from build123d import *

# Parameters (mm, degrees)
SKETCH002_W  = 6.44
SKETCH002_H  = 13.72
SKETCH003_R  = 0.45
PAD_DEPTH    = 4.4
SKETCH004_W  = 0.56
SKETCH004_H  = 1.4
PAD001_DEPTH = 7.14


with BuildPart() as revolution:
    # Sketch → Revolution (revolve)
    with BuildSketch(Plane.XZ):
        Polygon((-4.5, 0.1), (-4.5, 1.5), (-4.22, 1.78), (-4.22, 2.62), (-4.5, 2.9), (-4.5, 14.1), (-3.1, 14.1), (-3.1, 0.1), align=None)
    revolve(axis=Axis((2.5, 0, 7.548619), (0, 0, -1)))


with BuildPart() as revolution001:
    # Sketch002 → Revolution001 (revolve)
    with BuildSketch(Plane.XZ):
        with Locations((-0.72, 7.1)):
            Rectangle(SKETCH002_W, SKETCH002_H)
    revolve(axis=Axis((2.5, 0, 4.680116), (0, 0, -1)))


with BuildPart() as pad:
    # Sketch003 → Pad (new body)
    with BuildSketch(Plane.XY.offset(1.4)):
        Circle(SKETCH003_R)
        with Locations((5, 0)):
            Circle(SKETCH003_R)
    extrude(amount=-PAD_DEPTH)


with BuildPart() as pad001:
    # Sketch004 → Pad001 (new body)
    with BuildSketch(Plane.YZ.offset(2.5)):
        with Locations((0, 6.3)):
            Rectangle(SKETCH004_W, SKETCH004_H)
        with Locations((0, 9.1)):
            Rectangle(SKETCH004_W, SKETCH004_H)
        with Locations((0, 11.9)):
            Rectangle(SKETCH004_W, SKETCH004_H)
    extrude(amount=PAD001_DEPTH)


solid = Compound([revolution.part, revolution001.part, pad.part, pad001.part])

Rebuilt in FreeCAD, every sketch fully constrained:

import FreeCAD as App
import Part
import Sketcher
from FreeCAD import Vector


def add_polygon(sketch, points):
    """Adds a closed chain of lines whose ends are joined by coincident constraints."""
    first, n = sketch.GeometryCount, len(points)
    for a, b in zip(points, points[1:] + points[:1]):
        sketch.addGeometry(Part.LineSegment(App.Vector(*a, 0), App.Vector(*b, 0)), False)
    for i in range(n):
        sketch.addConstraint(Sketcher.Constraint("Coincident", first + i, 2, first + (i + 1) % n, 1))

doc = App.newDocument("Part")
body = doc.addObject("PartDesign::Body", "Body")

# Sketch on XZ plane
sketch1 = body.newObject("Sketcher::SketchObject", "Sketch")
sketch1.AttachmentSupport = (doc.getObject("XZ_Plane"), [""])
sketch1.MapMode = "FlatFace"
add_polygon(sketch1, [(-4.5, 1.5), (-4.5, 0.1), (-3.1, 0.1), (-3.1, 14.1), (-4.5, 14.1), (-4.5, 2.9), (-4.22, 2.62), (-4.22, 1.78)])  # lines 0-7
sketch1.addGeometry(Part.LineSegment(Vector(2.5, 14.1, 0), Vector(2.5, 0.1, 0)), True)  # axis
sketch1.addConstraint(Sketcher.Constraint("Vertical", 0))
sketch1.addConstraint(Sketcher.Constraint("Horizontal", 1))
sketch1.addConstraint(Sketcher.Constraint("Vertical", 2))
sketch1.addConstraint(Sketcher.Constraint("Horizontal", 3))
sketch1.addConstraint(Sketcher.Constraint("Vertical", 4))
sketch1.addConstraint(Sketcher.Constraint("Vertical", 6))
sketch1.addConstraint(Sketcher.Constraint("Vertical", 8))
sketch1.addConstraint(Sketcher.Constraint("Perpendicular", 5, 7))
sketch1.addConstraint(Sketcher.Constraint("Horizontal", 3, 2, 8, 1))
sketch1.addConstraint(Sketcher.Constraint("Horizontal", 1, 2, 8, 2))
sketch1.addConstraint(Sketcher.Constraint("Vertical", 0, 2, 3, 2))
sketch1.addConstraint(Sketcher.Constraint("Equal", 3, 0))
sketch1.addConstraint(Sketcher.Constraint("Equal", 5, 7))
sketch1.addConstraint(Sketcher.Constraint("DistanceY", 2, 1, 2, 2, 14.0))
sketch1.addConstraint(Sketcher.Constraint("DistanceX", 1, 1, 1, 2, 1.4))
sketch1.addConstraint(Sketcher.Constraint("DistanceY", 4, 2, 4, 1, 11.2))
sketch1.addConstraint(Sketcher.Constraint("DistanceX", 3, 2, 8, 1, 7.0))
sketch1.addConstraint(Sketcher.Constraint("DistanceY", 6, 2, 6, 1, 0.84))
sketch1.addConstraint(Sketcher.Constraint("DistanceX", 0, 2, -1, 1, 4.5))
sketch1.addConstraint(Sketcher.Constraint("DistanceY", -1, 1, 0, 2, 0.1))
revolution = body.newObject("PartDesign::Revolution", "Revolution")
revolution.Profile = sketch1
revolution.ReferenceAxis = (sketch1, ["Axis0"])
revolution.Angle = 360
body2 = doc.addObject("PartDesign::Body", "Body001")

# Sketch on XZ plane
sketch2 = body2.newObject("Sketcher::SketchObject", "Sketch001")
sketch2.AttachmentSupport = (doc.getObject("XZ_Plane001"), [""])
sketch2.MapMode = "FlatFace"
add_polygon(sketch2, [(-3.94, 13.96), (-3.94, 0.24), (2.5, 0.24), (2.5, 13.96)])  # lines 0-3
sketch2.addGeometry(Part.LineSegment(Vector(2.5, 13.96, 0), Vector(2.5, 0.24, 0)), True)  # axis
sketch2.addConstraint(Sketcher.Constraint("Vertical", 0))
sketch2.addConstraint(Sketcher.Constraint("Horizontal", 1))
sketch2.addConstraint(Sketcher.Constraint("Vertical", 2))
sketch2.addConstraint(Sketcher.Constraint("Horizontal", 3))
sketch2.addConstraint(Sketcher.Constraint("Vertical", 4))
sketch2.addConstraint(Sketcher.Constraint("Coincident", 4, 1, 2, 2))
sketch2.addConstraint(Sketcher.Constraint("Horizontal", 0, 2, 4, 2))
sketch2.addConstraint(Sketcher.Constraint("DistanceX", 1, 1, 1, 2, 6.44))
sketch2.addConstraint(Sketcher.Constraint("DistanceY", 0, 2, 0, 1, 13.72))
sketch2.addConstraint(Sketcher.Constraint("DistanceX", -1, 1, 1, 2, 2.5))
sketch2.addConstraint(Sketcher.Constraint("DistanceY", -1, 1, 0, 2, 0.24))
revolution2 = body2.newObject("PartDesign::Revolution", "Revolution001")
revolution2.Profile = sketch2
revolution2.ReferenceAxis = (sketch2, ["Axis0"])
revolution2.Angle = 360
body3 = doc.addObject("PartDesign::Body", "Body002")
body3.AllowCompound = True

# Sketch on XY plane
sketch3 = body3.newObject("Sketcher::SketchObject", "Sketch002")
sketch3.AttachmentSupport = (doc.getObject("XY_Plane002"), [""])
sketch3.MapMode = "FlatFace"
sketch3.AttachmentOffset = App.Placement(Vector(0, 0, 1.4), App.Rotation())
sketch3.addGeometry(Part.Circle(Vector(0, 0, 0), Vector(0, 0, 1), 0.45), False)
sketch3.addGeometry(Part.Circle(Vector(5, 0, 0), Vector(0, 0, 1), 0.45), False)
sketch3.addConstraint(Sketcher.Constraint("Coincident", 0, 3, -1, 1))
sketch3.addConstraint(Sketcher.Constraint("Equal", 0, 1))
sketch3.addConstraint(Sketcher.Constraint("PointOnObject", 1, 3, -1))
sketch3.addConstraint(Sketcher.Constraint("Diameter", 0, 0.9))
sketch3.addConstraint(Sketcher.Constraint("DistanceX", -1, 1, 1, 3, 5.0))
pad1 = body3.newObject("PartDesign::Pad", "Pad")
pad1.Profile = sketch3
pad1.Length = 4.4
pad1.Reversed = True
body4 = doc.addObject("PartDesign::Body", "Body003")
body4.AllowCompound = True

# Sketch on YZ plane
sketch4 = body4.newObject("Sketcher::SketchObject", "Sketch003")
sketch4.AttachmentSupport = (doc.getObject("YZ_Plane003"), [""])
sketch4.MapMode = "FlatFace"
sketch4.AttachmentOffset = App.Placement(Vector(0, 0, 2.5), App.Rotation())
add_polygon(sketch4, [(-0.28, 7), (-0.28, 5.6), (0.28, 5.6), (0.28, 7)])  # lines 0-3
add_polygon(sketch4, [(-0.28, 9.8), (-0.28, 8.4), (0.28, 8.4), (0.28, 9.8)])  # lines 4-7
add_polygon(sketch4, [(-0.28, 12.6), (-0.28, 11.2), (0.28, 11.2), (0.28, 12.6)])  # lines 8-11
sketch4.addConstraint(Sketcher.Constraint("Vertical", 0))
sketch4.addConstraint(Sketcher.Constraint("Horizontal", 1))
sketch4.addConstraint(Sketcher.Constraint("Vertical", 2))
sketch4.addConstraint(Sketcher.Constraint("Horizontal", 3))
sketch4.addConstraint(Sketcher.Constraint("Vertical", 4))
sketch4.addConstraint(Sketcher.Constraint("Horizontal", 5))
sketch4.addConstraint(Sketcher.Constraint("Vertical", 6))
sketch4.addConstraint(Sketcher.Constraint("Horizontal", 7))
sketch4.addConstraint(Sketcher.Constraint("Vertical", 8))
sketch4.addConstraint(Sketcher.Constraint("Horizontal", 9))
sketch4.addConstraint(Sketcher.Constraint("Vertical", 10))
sketch4.addConstraint(Sketcher.Constraint("Horizontal", 11))
sketch4.addConstraint(Sketcher.Constraint("Vertical", 3, 2, 4, 2))
sketch4.addConstraint(Sketcher.Constraint("Vertical", 2, 2, 5, 2))
sketch4.addConstraint(Sketcher.Constraint("Vertical", 7, 2, 8, 2))
sketch4.addConstraint(Sketcher.Constraint("Vertical", 6, 2, 9, 2))
sketch4.addConstraint(Sketcher.Constraint("Equal", 2, 4))
sketch4.addConstraint(Sketcher.Constraint("Equal", 6, 8))
sketch4.addConstraint(Sketcher.Constraint("DistanceY", 0, 2, 0, 1, 1.4))
sketch4.addConstraint(Sketcher.Constraint("DistanceY", -1, 1, 2, 2, 7.0))
sketch4.addConstraint(Sketcher.Constraint("DistanceX", 1, 1, 1, 2, 0.56))
sketch4.addConstraint(Sketcher.Constraint("DistanceY", -1, 1, 4, 2, 8.4))
sketch4.addConstraint(Sketcher.Constraint("DistanceY", -1, 1, 8, 2, 11.2))
sketch4.addConstraint(Sketcher.Constraint("DistanceX", 0, 2, -1, 1, 0.28))
pad2 = body4.newObject("PartDesign::Pad", "Pad001")
pad2.Profile = sketch4
pad2.Length = 7.14

doc.recompute()
